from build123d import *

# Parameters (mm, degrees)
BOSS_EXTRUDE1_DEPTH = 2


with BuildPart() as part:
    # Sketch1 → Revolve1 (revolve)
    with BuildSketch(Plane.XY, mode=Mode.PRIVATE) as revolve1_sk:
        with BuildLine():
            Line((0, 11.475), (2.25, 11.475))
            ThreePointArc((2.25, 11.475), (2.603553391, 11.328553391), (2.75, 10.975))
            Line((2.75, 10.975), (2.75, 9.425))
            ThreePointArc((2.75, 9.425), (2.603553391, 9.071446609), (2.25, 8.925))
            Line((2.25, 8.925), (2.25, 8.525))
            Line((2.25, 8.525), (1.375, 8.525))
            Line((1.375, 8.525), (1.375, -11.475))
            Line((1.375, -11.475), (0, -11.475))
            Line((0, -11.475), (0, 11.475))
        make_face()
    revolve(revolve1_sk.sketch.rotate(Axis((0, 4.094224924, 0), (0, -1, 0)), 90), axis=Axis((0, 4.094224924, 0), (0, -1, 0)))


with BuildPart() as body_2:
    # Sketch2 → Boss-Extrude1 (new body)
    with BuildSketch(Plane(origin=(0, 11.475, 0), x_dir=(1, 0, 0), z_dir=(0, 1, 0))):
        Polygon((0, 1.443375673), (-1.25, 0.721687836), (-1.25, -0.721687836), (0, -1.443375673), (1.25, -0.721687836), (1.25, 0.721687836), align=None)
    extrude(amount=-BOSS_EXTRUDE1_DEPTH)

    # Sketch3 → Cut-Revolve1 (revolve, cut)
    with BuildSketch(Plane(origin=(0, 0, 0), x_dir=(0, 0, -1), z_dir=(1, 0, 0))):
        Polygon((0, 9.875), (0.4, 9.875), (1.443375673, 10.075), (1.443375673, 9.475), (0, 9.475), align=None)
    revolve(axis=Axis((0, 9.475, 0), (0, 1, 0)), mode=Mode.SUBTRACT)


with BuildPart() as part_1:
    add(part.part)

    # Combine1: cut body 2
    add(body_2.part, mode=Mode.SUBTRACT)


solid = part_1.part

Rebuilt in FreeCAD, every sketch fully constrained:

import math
import FreeCAD as App
import Part
import Sketcher
from FreeCAD import Vector
Q = App.Units.Quantity

doc = App.newDocument("Part")
body = doc.addObject("PartDesign::Body", "Body")

sketch1 = body.newObject("Sketcher::SketchObject", "Sketch")
sketch1.AttachmentSupport = (doc.getObject("XY_Plane"), [""])
sketch1.MapMode = "FlatFace"
sketch1.addGeometry(Part.LineSegment(Vector(2.25, 11.475, 0), Vector(0, 11.475, 0)), False)
sketch1.addGeometry(Part.LineSegment(Vector(0, 11.475, 0), Vector(0, -11.475, 0)), False)
sketch1.addGeometry(Part.LineSegment(Vector(0, -11.475, 0), Vector(1.375, -11.475, 0)), False)
sketch1.addGeometry(Part.LineSegment(Vector(1.375, -11.475, 0), Vector(1.375, 8.525, 0)), False)
sketch1.addGeometry(Part.LineSegment(Vector(1.375, 8.525, 0), Vector(2.25, 8.525, 0)), False)
sketch1.addGeometry(Part.LineSegment(Vector(2.25, 8.525, 0), Vector(2.25, 8.925, 0)), False)
sketch1.addGeometry(Part.ArcOfCircle(Part.Circle(Vector(2.25, 9.425, 0), Vector(0, 0, 1), 0.5), math.radians(-90), math.radians(0)), False)
sketch1.addGeometry(Part.LineSegment(Vector(2.75, 9.425, 0), Vector(2.75, 10.975, 0)), False)
sketch1.addGeometry(Part.ArcOfCircle(Part.Circle(Vector(2.25, 10.975, 0), Vector(0, 0, 1), 0.5), math.radians(0), math.radians(90)), False)
sketch1.addConstraint(Sketcher.Constraint("Coincident", 0, 2, 1, 1))
sketch1.addConstraint(Sketcher.Constraint("Coincident", 1, 2, 2, 1))
sketch1.addConstraint(Sketcher.Constraint("Coincident", 2, 2, 3, 1))
sketch1.addConstraint(Sketcher.Constraint("Coincident", 3, 2, 4, 1))
sketch1.addConstraint(Sketcher.Constraint("Coincident", 4, 2, 5, 1))
sketch1.addConstraint(Sketcher.Constraint("Coincident", 5, 2, 6, 1))
sketch1.addConstraint(Sketcher.Constraint("Tangent", 6, 2, 7, 1))
sketch1.addConstraint(Sketcher.Constraint("Tangent", 7, 2, 8, 1))
sketch1.addConstraint(Sketcher.Constraint("Tangent", 8, 2, 0, 1))
sketch1.addConstraint(Sketcher.Constraint("Horizontal", 0))
sketch1.addConstraint(Sketcher.Constraint("Vertical", 1))
sketch1.addConstraint(Sketcher.Constraint("Horizontal", 2))
sketch1.addConstraint(Sketcher.Constraint("Vertical", 3))
sketch1.addConstraint(Sketcher.Constraint("Horizontal", 4))
sketch1.addConstraint(Sketcher.Constraint("Vertical", 5))
sketch1.addConstraint(Sketcher.Constraint("Vertical", 7))
sketch1.addConstraint(Sketcher.Constraint("Equal", 6, 8))
sketch1.addConstraint(Sketcher.Constraint("Symmetric", 0, 2, 1, 2, -1, 1))
sketch1.addConstraint(Sketcher.Constraint("Vertical", 8, 3, 4, 2))
sketch1.addConstraint(Sketcher.Constraint("Radius", 6, Q("0.5 mm")))
sketch1.addConstraint(Sketcher.Constraint("DistanceY", 3, 1, 3, 2, Q("20 mm")))
sketch1.addConstraint(Sketcher.Constraint("DistanceY", 5, 1, 5, 2, Q("0.4 mm")))
sketch1.addConstraint(Sketcher.Constraint("DistanceX", 0, 2, 0, 1, Q("2.25 mm")))
sketch1.addConstraint(Sketcher.Constraint("DistanceY", 1, 2, 1, 1, Q("22.95 mm")))
sketch1.addConstraint(Sketcher.Constraint("DistanceX", 2, 1, 2, 2, Q("1.375 mm")))
revolution = body.newObject("PartDesign::Revolution", "Revolution")
revolution.Profile = sketch1
revolution.ReferenceAxis = (sketch1, ["V_Axis"])
revolution.Angle = 360
body2 = doc.addObject("PartDesign::Body", "Body001")

sketch2 = body2.newObject("Sketcher::SketchObject", "Sketch001")
sketch2.AttachmentSupport = (doc.getObject("XZ_Plane001"), [""])
sketch2.MapMode = "FlatFace"
sketch2.AttachmentOffset = App.Placement(Vector(0, 0, -11.475), App.Rotation())
sketch2.addGeometry(Part.LineSegment(Vector(0, -1.443376, 0), Vector(-1.25, -0.721688, 0)), False)
sketch2.addGeometry(Part.LineSegment(Vector(-1.25, -0.721688, 0), Vector(-1.25, 0.721688, 0)), False)
sketch2.addGeometry(Part.LineSegment(Vector(-1.25, 0.721688, 0), Vector(0, 1.443376, 0)), False)
sketch2.addGeometry(Part.LineSegment(Vector(0, 1.443376, 0), Vector(1.25, 0.721688, 0)), False)
sketch2.addGeometry(Part.LineSegment(Vector(1.25, 0.721688, 0), Vector(1.25, -0.721688, 0)), False)
sketch2.addGeometry(Part.LineSegment(Vector(1.25, -0.721688, 0), Vector(0, -1.443376, 0)), False)
sketch2.addConstraint(Sketcher.Constraint("Coincident", 0, 2, 1, 1))
sketch2.addConstraint(Sketcher.Constraint("Coincident", 1, 2, 2, 1))
sketch2.addConstraint(Sketcher.Constraint("Coincident", 2, 2, 3, 1))
sketch2.addConstraint(Sketcher.Constraint("Coincident", 3, 2, 4, 1))
sketch2.addConstraint(Sketcher.Constraint("Coincident", 4, 2, 5, 1))
sketch2.addConstraint(Sketcher.Constraint("Coincident", 5, 2, 0, 1))
sketch2.addConstraint(Sketcher.Constraint("Vertical", 1))
sketch2.addConstraint(Sketcher.Constraint("Vertical", 4))
sketch2.addConstraint(Sketcher.Constraint("Symmetric", 0, 2, 3, 2, -1, 1))
sketch2.addConstraint(Sketcher.Constraint("Symmetric", 2, 2, 5, 2, -1, 1))
sketch2.addConstraint(Sketcher.Constraint("PointOnObject", 2, 2, -2))
sketch2.addConstraint(Sketcher.Constraint("Parallel", 2, 5))
sketch2.addConstraint(Sketcher.Constraint("Horizontal", 1, 2, 3, 2))
sketch2.addConstraint(Sketcher.Constraint("Angle", 0, Q("150 deg")))
sketch2.addConstraint(Sketcher.Constraint("DistanceX", 1, 2, 3, 2, Q("2.5 mm")))
sketch2.addConstraint(Sketcher.Constraint("DistanceY", 1, 1, 1, 2, Q("1.443376 mm")))
pad1 = body2.newObject("PartDesign::Pad", "Pad")
pad1.Profile = sketch2
pad1.Length = 2

sketch3 = body2.newObject("Sketcher::SketchObject", "Sketch002")
sketch3.AttachmentSupport = (doc.getObject("YZ_Plane001"), [""])
sketch3.MapMode = "FlatFace"
sketch3.addGeometry(Part.LineSegment(Vector(9.875, -0.4, 0), Vector(9.875, 0, 0)), False)
sketch3.addGeometry(Part.LineSegment(Vector(9.875, 0, 0), Vector(9.475, 0, 0)), False)
sketch3.addGeometry(Part.LineSegment(Vector(9.475, 0, 0), Vector(9.475, -1.443376, 0)), False)
sketch3.addGeometry(Part.LineSegment(Vector(9.475, -1.443376, 0), Vector(10.075, -1.443376, 0)), False)
sketch3.addGeometry(Part.LineSegment(Vector(10.075, -1.443376, 0), Vector(9.875, -0.4, 0)), False)
sketch3.addConstraint(Sketcher.Constraint("Coincident", 0, 2, 1, 1))
sketch3.addConstraint(Sketcher.Constraint("Coincident", 1, 2, 2, 1))
sketch3.addConstraint(Sketcher.Constraint("Coincident", 2, 2, 3, 1))
sketch3.addConstraint(Sketcher.Constraint("Coincident", 3, 2, 4, 1))
sketch3.addConstraint(Sketcher.Constraint("Coincident", 4, 2, 0, 1))
sketch3.addConstraint(Sketcher.Constraint("Vertical", 0))
sketch3.addConstraint(Sketcher.Constraint("Horizontal", 1))
sketch3.addConstraint(Sketcher.Constraint("Vertical", 2))
sketch3.addConstraint(Sketcher.Constraint("Horizontal", 3))
sketch3.addConstraint(Sketcher.Constraint("PointOnObject", 0, 2, -1))
sketch3.addConstraint(Sketcher.Constraint("Equal", 1, 0))
sketch3.addConstraint(Sketcher.Constraint("DistanceX", 1, 2, 1, 1, Q("0.4 mm")))
sketch3.addConstraint(Sketcher.Constraint("DistanceX", 3, 1, 3, 2, Q("0.6 mm")))
sketch3.addConstraint(Sketcher.Constraint("DistanceX", -1, 1, 0, 2, Q("9.875 mm")))
sketch3.addConstraint(Sketcher.Constraint("Distance", 4, Q("1.062371 mm")))
groove = body2.newObject("PartDesign::Groove", "Groove")
groove.Profile = sketch3
groove.ReferenceAxis = (sketch3, ["H_Axis"])
groove.Angle = 360
doc.recompute()

boolean = body.newObject("PartDesign::Boolean", "Boolean")
boolean.Type = "Cut"
boolean.addObjects([body2])

doc.recompute()
